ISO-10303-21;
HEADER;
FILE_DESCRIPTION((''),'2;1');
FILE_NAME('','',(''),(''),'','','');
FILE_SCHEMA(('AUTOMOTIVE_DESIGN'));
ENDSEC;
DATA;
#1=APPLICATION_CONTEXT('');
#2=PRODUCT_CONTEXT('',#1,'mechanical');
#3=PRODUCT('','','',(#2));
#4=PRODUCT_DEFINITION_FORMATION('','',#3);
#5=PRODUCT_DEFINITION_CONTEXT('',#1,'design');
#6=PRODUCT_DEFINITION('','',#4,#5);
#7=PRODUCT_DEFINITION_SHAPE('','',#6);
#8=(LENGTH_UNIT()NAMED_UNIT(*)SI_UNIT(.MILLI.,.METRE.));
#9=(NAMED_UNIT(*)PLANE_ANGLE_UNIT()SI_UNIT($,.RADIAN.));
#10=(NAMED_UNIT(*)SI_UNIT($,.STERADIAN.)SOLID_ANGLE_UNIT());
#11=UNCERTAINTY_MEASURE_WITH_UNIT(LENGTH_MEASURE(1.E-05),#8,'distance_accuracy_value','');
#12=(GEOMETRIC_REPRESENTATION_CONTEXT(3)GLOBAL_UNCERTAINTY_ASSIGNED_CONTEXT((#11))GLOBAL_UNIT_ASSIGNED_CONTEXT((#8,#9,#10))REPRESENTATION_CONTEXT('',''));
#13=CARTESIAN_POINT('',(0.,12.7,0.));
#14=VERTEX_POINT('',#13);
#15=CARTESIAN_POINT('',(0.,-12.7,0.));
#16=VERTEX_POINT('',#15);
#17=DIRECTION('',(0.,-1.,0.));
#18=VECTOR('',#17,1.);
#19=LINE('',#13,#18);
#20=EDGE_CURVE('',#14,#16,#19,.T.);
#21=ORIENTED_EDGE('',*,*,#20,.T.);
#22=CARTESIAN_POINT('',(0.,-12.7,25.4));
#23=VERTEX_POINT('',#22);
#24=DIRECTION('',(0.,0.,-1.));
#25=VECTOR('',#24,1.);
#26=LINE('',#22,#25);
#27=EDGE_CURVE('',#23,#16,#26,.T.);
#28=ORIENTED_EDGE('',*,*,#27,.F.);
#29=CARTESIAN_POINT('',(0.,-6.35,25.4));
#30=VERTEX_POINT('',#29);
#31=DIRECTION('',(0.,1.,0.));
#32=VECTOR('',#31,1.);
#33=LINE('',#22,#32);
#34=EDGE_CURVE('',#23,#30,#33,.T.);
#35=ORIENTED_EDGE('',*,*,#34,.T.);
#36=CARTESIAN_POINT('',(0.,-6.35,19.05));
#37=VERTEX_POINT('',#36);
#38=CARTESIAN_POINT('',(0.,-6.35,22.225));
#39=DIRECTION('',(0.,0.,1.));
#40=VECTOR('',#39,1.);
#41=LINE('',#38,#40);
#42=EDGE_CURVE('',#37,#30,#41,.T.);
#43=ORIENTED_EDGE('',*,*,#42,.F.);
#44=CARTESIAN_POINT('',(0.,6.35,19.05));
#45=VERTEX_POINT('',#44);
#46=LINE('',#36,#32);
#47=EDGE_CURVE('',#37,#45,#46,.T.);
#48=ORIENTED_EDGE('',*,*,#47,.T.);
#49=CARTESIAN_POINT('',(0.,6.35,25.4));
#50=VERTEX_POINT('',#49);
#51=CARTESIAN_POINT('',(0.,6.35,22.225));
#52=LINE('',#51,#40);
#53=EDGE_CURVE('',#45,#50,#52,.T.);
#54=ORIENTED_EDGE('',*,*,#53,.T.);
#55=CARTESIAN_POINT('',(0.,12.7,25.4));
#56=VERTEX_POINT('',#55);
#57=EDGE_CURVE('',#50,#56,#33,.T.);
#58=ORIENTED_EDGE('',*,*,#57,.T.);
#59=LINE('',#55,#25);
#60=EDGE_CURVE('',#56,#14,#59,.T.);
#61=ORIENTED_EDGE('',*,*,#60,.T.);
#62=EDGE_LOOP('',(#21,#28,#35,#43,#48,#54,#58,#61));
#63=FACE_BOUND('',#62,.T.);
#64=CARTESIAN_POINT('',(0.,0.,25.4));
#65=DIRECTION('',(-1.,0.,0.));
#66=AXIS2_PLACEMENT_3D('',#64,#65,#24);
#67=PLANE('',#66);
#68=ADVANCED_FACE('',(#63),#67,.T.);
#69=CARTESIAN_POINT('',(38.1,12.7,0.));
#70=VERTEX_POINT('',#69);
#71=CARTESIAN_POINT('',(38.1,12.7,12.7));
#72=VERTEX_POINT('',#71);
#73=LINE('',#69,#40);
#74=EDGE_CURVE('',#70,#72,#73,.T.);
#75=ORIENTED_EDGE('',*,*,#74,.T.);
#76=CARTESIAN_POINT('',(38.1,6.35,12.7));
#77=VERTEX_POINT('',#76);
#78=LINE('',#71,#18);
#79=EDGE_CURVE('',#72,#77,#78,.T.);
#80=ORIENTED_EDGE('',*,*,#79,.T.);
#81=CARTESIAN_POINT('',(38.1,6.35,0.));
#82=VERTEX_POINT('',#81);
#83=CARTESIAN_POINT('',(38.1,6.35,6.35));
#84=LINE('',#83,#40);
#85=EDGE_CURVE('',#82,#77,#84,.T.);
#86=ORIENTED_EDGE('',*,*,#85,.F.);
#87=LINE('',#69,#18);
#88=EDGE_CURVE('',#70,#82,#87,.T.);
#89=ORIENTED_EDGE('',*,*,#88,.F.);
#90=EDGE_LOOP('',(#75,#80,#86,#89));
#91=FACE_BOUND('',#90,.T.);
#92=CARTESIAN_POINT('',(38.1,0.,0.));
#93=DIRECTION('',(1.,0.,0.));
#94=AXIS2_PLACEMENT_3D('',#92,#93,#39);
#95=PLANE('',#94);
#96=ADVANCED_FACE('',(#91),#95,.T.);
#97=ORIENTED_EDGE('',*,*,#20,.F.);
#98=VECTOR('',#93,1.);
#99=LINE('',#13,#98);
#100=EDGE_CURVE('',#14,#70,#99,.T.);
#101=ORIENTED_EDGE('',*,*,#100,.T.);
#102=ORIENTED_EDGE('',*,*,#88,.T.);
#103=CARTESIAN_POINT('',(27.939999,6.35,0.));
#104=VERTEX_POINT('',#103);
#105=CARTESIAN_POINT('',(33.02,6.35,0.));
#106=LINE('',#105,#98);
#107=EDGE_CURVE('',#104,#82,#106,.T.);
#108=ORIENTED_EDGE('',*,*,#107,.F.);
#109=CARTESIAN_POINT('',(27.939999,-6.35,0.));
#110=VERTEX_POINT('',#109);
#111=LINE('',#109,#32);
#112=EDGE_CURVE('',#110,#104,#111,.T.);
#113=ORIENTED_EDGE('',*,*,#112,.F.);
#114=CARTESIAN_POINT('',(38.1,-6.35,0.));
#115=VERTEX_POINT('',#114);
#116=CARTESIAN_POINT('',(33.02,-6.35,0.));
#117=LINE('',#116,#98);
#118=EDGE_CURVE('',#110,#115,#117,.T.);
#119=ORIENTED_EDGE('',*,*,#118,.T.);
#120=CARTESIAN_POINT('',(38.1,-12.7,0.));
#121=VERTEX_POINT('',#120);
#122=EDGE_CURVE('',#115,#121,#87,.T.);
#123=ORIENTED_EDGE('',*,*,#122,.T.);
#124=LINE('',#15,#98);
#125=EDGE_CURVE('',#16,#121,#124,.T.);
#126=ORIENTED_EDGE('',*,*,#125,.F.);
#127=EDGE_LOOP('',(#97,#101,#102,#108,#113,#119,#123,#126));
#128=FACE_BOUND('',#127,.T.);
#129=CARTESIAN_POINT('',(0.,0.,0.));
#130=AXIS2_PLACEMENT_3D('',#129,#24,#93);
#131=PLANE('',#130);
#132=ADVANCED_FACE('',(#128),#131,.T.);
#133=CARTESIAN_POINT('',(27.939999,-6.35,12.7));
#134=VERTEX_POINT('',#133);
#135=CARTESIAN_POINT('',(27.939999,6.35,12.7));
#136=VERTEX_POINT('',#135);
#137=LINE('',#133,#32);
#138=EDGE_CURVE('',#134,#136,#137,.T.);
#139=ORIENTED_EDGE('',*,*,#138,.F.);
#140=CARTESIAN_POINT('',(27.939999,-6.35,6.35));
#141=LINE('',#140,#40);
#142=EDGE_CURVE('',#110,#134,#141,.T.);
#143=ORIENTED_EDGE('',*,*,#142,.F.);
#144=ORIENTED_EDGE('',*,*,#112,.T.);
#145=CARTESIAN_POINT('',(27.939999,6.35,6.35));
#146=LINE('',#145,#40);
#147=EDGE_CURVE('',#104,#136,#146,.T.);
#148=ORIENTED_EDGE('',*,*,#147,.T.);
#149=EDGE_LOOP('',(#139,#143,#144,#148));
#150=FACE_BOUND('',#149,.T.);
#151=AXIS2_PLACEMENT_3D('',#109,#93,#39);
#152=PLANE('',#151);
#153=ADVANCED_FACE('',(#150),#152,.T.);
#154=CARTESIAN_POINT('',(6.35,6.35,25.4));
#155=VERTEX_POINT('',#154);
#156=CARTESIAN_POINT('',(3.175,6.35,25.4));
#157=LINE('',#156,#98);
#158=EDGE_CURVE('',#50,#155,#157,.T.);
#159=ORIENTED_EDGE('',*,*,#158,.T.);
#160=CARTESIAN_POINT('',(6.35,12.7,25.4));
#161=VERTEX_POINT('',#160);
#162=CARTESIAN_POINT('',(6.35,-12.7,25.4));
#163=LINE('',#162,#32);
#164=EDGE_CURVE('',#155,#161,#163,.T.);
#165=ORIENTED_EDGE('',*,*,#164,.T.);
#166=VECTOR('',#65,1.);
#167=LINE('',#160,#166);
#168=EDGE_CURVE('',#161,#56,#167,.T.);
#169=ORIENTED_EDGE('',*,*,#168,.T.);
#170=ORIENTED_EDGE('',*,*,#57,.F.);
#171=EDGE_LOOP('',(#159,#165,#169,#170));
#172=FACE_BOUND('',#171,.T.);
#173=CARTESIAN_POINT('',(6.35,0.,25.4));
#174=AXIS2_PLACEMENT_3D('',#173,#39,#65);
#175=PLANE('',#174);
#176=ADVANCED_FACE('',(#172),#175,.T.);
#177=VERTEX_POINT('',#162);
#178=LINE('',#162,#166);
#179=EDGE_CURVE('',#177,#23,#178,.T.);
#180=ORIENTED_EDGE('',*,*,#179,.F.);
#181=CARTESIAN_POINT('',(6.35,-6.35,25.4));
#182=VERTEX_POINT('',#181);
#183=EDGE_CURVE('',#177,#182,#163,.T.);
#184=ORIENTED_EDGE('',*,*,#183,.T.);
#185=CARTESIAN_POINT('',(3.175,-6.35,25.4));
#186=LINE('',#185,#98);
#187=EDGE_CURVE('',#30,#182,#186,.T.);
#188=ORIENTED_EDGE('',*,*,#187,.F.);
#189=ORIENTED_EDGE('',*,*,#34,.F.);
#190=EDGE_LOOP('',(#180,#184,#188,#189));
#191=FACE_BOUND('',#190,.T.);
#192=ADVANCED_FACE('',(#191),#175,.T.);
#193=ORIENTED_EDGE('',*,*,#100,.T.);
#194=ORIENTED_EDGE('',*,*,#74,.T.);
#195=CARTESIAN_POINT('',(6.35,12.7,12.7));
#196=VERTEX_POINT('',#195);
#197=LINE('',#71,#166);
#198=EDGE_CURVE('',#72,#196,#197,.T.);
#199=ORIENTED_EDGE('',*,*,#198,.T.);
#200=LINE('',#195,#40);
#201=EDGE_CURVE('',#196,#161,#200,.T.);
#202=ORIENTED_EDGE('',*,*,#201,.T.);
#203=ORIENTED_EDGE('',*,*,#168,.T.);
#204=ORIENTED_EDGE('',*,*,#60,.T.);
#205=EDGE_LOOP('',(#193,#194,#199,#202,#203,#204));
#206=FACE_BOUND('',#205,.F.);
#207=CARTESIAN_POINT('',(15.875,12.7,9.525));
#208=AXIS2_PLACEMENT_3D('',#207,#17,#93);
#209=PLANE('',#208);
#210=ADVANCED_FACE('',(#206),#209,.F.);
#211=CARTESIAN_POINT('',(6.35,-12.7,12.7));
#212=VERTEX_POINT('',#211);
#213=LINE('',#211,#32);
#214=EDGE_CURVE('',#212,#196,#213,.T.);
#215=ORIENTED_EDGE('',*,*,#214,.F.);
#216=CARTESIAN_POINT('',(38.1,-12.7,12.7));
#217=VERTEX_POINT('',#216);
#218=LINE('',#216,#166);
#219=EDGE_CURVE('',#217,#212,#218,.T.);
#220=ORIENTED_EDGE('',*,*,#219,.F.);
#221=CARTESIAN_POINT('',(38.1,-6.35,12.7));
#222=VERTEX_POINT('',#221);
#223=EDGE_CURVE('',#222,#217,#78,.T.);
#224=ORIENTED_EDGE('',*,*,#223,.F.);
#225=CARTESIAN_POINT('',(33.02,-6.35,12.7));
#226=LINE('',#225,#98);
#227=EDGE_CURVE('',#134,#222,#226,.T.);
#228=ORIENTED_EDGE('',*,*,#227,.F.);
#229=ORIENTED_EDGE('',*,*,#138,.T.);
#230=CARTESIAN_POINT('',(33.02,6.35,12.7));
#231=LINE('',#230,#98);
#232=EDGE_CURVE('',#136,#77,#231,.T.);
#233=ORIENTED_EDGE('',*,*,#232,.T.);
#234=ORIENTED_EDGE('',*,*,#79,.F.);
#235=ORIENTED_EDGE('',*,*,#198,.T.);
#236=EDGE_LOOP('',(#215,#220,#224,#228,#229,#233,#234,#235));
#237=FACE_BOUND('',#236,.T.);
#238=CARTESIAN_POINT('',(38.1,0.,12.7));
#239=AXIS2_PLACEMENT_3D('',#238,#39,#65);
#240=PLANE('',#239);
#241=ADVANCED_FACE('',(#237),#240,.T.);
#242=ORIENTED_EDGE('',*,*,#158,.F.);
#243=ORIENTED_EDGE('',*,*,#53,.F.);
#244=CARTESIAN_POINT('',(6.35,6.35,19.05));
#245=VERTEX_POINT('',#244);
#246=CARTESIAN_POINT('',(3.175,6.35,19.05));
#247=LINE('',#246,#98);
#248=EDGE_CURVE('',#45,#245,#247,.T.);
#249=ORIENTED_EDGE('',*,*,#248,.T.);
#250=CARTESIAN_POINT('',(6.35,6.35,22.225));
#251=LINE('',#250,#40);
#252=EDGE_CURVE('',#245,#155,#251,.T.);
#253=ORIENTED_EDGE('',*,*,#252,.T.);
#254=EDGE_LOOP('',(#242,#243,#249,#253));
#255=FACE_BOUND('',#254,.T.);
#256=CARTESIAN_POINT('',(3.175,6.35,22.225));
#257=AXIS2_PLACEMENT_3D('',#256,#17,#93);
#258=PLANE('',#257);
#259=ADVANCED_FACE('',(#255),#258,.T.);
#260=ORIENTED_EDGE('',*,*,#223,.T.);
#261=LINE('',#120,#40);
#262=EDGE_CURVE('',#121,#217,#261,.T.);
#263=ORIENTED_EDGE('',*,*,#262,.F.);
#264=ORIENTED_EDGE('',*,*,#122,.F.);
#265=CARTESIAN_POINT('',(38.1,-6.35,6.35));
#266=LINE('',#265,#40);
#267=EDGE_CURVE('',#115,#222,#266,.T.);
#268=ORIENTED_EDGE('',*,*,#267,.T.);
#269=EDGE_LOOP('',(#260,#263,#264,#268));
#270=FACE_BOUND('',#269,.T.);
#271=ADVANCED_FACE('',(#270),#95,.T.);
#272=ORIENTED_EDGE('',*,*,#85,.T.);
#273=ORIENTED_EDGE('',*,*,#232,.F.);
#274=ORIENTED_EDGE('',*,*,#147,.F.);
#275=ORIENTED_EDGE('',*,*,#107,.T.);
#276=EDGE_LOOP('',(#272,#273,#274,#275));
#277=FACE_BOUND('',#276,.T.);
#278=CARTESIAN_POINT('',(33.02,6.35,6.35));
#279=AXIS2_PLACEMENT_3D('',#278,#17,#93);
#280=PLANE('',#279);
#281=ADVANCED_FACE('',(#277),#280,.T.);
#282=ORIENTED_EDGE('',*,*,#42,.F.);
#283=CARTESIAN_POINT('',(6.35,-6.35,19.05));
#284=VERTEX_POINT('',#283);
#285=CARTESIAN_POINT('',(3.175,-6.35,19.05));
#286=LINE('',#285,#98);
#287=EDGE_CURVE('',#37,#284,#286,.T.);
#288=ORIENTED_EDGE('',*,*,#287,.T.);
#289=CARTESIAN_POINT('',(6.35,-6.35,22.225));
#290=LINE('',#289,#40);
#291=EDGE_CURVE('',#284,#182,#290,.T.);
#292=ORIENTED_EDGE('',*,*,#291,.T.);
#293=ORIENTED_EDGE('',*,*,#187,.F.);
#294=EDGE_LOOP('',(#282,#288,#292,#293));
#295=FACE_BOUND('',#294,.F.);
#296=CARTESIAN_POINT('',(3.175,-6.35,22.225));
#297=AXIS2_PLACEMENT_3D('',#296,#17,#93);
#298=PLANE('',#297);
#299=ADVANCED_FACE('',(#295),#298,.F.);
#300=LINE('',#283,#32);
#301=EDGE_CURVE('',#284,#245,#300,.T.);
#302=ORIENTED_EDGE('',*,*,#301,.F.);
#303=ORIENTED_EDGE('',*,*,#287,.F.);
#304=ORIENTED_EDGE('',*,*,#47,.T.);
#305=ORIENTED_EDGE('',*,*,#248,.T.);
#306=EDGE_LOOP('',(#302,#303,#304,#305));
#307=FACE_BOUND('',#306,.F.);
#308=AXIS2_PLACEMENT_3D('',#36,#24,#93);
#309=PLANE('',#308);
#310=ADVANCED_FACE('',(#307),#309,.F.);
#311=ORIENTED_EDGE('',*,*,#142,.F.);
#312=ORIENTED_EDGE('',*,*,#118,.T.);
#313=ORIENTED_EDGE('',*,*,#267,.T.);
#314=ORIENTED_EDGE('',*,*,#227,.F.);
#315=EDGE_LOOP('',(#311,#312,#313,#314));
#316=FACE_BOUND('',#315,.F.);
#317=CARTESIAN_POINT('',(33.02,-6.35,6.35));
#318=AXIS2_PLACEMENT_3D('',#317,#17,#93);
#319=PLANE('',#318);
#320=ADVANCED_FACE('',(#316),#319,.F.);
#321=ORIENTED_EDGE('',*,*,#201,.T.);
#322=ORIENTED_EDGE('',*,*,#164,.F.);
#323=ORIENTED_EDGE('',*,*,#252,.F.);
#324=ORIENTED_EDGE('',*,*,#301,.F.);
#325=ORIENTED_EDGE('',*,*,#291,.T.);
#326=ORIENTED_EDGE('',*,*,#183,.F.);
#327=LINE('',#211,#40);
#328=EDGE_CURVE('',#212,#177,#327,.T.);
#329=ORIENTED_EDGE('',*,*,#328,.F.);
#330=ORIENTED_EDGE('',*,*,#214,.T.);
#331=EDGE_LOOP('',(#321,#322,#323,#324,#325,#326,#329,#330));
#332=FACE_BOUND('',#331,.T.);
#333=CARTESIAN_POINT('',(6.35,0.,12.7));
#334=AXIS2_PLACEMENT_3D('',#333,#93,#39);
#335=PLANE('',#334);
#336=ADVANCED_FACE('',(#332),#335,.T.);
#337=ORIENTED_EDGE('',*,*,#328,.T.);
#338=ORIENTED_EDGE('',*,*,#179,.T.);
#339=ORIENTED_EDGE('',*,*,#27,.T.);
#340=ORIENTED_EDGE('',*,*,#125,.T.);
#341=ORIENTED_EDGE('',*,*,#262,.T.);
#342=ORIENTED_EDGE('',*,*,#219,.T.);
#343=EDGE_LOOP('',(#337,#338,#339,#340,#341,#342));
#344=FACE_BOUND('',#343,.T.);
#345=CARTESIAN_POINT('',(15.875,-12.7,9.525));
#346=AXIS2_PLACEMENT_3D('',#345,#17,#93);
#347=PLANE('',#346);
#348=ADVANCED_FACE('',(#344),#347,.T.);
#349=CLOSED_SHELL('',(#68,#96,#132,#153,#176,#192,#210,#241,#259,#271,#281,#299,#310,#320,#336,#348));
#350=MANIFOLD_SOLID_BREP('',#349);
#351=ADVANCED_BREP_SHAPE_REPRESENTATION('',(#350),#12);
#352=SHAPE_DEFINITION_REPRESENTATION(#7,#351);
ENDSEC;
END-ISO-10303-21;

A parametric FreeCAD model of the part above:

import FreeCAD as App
import Part
import Sketcher
Q = App.Units.Quantity

doc = App.newDocument("Part")
body = doc.addObject("PartDesign::Body", "Body")

# Sketch on XZ plane
sketch1 = body.newObject("Sketcher::SketchObject", "Sketch")
sketch1.AttachmentSupport = (doc.getObject("XZ_Plane"), [""])
sketch1.MapMode = "FlatFace"
sketch1.addGeometry([
    Part.LineSegment(App.Vector(0, 25.4, 0), App.Vector(0, 0, 0)),  # 0
    Part.LineSegment(App.Vector(0, 0, 0), App.Vector(38.1, 0, 0)),  # 1
    Part.LineSegment(App.Vector(38.1, 0, 0), App.Vector(38.1, 12.7, 0)),  # 2
    Part.LineSegment(App.Vector(38.1, 12.7, 0), App.Vector(6.35, 12.7, 0)),  # 3
    Part.LineSegment(App.Vector(6.35, 12.7, 0), App.Vector(6.35, 25.4, 0)),  # 4
    Part.LineSegment(App.Vector(6.35, 25.4, 0), App.Vector(0, 25.4, 0)),  # 5
], False)
sketch1.addConstraint([
    Sketcher.Constraint("Coincident", 0, 2, 1, 1),
    Sketcher.Constraint("Coincident", 1, 2, 2, 1),
    Sketcher.Constraint("Coincident", 2, 2, 3, 1),
    Sketcher.Constraint("Coincident", 3, 2, 4, 1),
    Sketcher.Constraint("Coincident", 4, 2, 5, 1),
    Sketcher.Constraint("Coincident", 5, 2, 0, 1),
    Sketcher.Constraint("Vertical", 0),
    Sketcher.Constraint("Horizontal", 1),
    Sketcher.Constraint("Vertical", 2),
    Sketcher.Constraint("Horizontal", 3),
    Sketcher.Constraint("Vertical", 4),
    Sketcher.Constraint("Horizontal", 5),
    Sketcher.Constraint("Coincident", 0, 2, -1, 1),
    Sketcher.Constraint("Equal", 2, 4),
    Sketcher.Constraint("DistanceY", 0, 2, 0, 1, Q("1 in")),
    Sketcher.Constraint("DistanceX", 1, 1, 1, 2, Q("1.5 in")),
    Sketcher.Constraint("DistanceX", 3, 2, 3, 1, Q("1.25 in")),
])
pad1 = body.newObject("PartDesign::Pad", "Pad")
pad1.Profile = sketch1
pad1.Length = Q("1 in")
pad1.Midplane = True

# Sketch on XZ plane
sketch2 = body.newObject("Sketcher::SketchObject", "Sketch001")
sketch2.AttachmentSupport = (doc.getObject("XZ_Plane"), [""])
sketch2.MapMode = "FlatFace"
sketch2.AttachmentOffset = App.Placement(App.Vector(0, 0, 0.25 * 25.4), App.Rotation())
sketch2.addGeometry([
    Part.LineSegment(App.Vector(27.939999, 12.7, 0), App.Vector(27.939999, 0, 0)),
    Part.LineSegment(App.Vector(27.939999, 0, 0), App.Vector(38.1, 0, 0)),
    Part.LineSegment(App.Vector(38.1, 0, 0), App.Vector(38.1, 12.7, 0)),
    Part.LineSegment(App.Vector(38.1, 12.7, 0), App.Vector(27.939999, 12.7, 0)),
], False)
sketch2.addConstraint([
    Sketcher.Constraint("Coincident", 0, 2, 1, 1),
    Sketcher.Constraint("Coincident", 1, 2, 2, 1),
    Sketcher.Constraint("Coincident", 2, 2, 3, 1),
    Sketcher.Constraint("Coincident", 3, 2, 0, 1),
    Sketcher.Constraint("Vertical", 0),
    Sketcher.Constraint("Horizontal", 1),
    Sketcher.Constraint("Vertical", 2),
    Sketcher.Constraint("Horizontal", 3),
    Sketcher.Constraint("PointOnObject", 0, 2, -1),
    Sketcher.Constraint("DistanceX", 1, 1, 1, 2, Q("0.4 in")),
    Sketcher.Constraint("DistanceY", 0, 2, 0, 1, Q("0.5 in")),
    Sketcher.Constraint("DistanceX", -1, 1, 0, 2, Q("1.1 in")),
])
pocket1 = body.newObject("PartDesign::Pocket", "Pocket")
pocket1.Profile = sketch2
pocket1.Length = Q("0.5 in")

# Sketch on XZ plane
sketch3 = body.newObject("Sketcher::SketchObject", "Sketch002")
sketch3.AttachmentSupport = (doc.getObject("XZ_Plane"), [""])
sketch3.MapMode = "FlatFace"
sketch3.AttachmentOffset = App.Placement(App.Vector(0, 0, 0.25 * 25.4), App.Rotation())
sketch3.addGeometry([
    Part.LineSegment(App.Vector(0, 25.4, 0), App.Vector(0, 19.05, 0)),
    Part.LineSegment(App.Vector(0, 19.05, 0), App.Vector(6.35, 19.05, 0)),
    Part.LineSegment(App.Vector(6.35, 19.05, 0), App.Vector(6.35, 25.4, 0)),
    Part.LineSegment(App.Vector(6.35, 25.4, 0), App.Vector(0, 25.4, 0)),
], False)
sketch3.addConstraint([
    Sketcher.Constraint("Coincident", 0, 2, 1, 1),
    Sketcher.Constraint("Coincident", 1, 2, 2, 1),
    Sketcher.Constraint("Coincident", 2, 2, 3, 1),
    Sketcher.Constraint("Coincident", 3, 2, 0, 1),
    Sketcher.Constraint("Vertical", 0),
    Sketcher.Constraint("Horizontal", 1),
    Sketcher.Constraint("Vertical", 2),
    Sketcher.Constraint("Horizontal", 3),
    Sketcher.Constraint("PointOnObject", 0, 2, -2),
    Sketcher.Constraint("Equal", 3, 0),
    Sketcher.Constraint("DistanceY", -1, 1, 2, 2, Q("1 in")),
    Sketcher.Constraint("DistanceX", 1, 1, 1, 2, Q("0.25 in")),
])
pocket2 = body.newObject("PartDesign::Pocket", "Pocket001")
pocket2.Profile = sketch3
pocket2.Length = Q("0.5 in")

doc.recompute()
